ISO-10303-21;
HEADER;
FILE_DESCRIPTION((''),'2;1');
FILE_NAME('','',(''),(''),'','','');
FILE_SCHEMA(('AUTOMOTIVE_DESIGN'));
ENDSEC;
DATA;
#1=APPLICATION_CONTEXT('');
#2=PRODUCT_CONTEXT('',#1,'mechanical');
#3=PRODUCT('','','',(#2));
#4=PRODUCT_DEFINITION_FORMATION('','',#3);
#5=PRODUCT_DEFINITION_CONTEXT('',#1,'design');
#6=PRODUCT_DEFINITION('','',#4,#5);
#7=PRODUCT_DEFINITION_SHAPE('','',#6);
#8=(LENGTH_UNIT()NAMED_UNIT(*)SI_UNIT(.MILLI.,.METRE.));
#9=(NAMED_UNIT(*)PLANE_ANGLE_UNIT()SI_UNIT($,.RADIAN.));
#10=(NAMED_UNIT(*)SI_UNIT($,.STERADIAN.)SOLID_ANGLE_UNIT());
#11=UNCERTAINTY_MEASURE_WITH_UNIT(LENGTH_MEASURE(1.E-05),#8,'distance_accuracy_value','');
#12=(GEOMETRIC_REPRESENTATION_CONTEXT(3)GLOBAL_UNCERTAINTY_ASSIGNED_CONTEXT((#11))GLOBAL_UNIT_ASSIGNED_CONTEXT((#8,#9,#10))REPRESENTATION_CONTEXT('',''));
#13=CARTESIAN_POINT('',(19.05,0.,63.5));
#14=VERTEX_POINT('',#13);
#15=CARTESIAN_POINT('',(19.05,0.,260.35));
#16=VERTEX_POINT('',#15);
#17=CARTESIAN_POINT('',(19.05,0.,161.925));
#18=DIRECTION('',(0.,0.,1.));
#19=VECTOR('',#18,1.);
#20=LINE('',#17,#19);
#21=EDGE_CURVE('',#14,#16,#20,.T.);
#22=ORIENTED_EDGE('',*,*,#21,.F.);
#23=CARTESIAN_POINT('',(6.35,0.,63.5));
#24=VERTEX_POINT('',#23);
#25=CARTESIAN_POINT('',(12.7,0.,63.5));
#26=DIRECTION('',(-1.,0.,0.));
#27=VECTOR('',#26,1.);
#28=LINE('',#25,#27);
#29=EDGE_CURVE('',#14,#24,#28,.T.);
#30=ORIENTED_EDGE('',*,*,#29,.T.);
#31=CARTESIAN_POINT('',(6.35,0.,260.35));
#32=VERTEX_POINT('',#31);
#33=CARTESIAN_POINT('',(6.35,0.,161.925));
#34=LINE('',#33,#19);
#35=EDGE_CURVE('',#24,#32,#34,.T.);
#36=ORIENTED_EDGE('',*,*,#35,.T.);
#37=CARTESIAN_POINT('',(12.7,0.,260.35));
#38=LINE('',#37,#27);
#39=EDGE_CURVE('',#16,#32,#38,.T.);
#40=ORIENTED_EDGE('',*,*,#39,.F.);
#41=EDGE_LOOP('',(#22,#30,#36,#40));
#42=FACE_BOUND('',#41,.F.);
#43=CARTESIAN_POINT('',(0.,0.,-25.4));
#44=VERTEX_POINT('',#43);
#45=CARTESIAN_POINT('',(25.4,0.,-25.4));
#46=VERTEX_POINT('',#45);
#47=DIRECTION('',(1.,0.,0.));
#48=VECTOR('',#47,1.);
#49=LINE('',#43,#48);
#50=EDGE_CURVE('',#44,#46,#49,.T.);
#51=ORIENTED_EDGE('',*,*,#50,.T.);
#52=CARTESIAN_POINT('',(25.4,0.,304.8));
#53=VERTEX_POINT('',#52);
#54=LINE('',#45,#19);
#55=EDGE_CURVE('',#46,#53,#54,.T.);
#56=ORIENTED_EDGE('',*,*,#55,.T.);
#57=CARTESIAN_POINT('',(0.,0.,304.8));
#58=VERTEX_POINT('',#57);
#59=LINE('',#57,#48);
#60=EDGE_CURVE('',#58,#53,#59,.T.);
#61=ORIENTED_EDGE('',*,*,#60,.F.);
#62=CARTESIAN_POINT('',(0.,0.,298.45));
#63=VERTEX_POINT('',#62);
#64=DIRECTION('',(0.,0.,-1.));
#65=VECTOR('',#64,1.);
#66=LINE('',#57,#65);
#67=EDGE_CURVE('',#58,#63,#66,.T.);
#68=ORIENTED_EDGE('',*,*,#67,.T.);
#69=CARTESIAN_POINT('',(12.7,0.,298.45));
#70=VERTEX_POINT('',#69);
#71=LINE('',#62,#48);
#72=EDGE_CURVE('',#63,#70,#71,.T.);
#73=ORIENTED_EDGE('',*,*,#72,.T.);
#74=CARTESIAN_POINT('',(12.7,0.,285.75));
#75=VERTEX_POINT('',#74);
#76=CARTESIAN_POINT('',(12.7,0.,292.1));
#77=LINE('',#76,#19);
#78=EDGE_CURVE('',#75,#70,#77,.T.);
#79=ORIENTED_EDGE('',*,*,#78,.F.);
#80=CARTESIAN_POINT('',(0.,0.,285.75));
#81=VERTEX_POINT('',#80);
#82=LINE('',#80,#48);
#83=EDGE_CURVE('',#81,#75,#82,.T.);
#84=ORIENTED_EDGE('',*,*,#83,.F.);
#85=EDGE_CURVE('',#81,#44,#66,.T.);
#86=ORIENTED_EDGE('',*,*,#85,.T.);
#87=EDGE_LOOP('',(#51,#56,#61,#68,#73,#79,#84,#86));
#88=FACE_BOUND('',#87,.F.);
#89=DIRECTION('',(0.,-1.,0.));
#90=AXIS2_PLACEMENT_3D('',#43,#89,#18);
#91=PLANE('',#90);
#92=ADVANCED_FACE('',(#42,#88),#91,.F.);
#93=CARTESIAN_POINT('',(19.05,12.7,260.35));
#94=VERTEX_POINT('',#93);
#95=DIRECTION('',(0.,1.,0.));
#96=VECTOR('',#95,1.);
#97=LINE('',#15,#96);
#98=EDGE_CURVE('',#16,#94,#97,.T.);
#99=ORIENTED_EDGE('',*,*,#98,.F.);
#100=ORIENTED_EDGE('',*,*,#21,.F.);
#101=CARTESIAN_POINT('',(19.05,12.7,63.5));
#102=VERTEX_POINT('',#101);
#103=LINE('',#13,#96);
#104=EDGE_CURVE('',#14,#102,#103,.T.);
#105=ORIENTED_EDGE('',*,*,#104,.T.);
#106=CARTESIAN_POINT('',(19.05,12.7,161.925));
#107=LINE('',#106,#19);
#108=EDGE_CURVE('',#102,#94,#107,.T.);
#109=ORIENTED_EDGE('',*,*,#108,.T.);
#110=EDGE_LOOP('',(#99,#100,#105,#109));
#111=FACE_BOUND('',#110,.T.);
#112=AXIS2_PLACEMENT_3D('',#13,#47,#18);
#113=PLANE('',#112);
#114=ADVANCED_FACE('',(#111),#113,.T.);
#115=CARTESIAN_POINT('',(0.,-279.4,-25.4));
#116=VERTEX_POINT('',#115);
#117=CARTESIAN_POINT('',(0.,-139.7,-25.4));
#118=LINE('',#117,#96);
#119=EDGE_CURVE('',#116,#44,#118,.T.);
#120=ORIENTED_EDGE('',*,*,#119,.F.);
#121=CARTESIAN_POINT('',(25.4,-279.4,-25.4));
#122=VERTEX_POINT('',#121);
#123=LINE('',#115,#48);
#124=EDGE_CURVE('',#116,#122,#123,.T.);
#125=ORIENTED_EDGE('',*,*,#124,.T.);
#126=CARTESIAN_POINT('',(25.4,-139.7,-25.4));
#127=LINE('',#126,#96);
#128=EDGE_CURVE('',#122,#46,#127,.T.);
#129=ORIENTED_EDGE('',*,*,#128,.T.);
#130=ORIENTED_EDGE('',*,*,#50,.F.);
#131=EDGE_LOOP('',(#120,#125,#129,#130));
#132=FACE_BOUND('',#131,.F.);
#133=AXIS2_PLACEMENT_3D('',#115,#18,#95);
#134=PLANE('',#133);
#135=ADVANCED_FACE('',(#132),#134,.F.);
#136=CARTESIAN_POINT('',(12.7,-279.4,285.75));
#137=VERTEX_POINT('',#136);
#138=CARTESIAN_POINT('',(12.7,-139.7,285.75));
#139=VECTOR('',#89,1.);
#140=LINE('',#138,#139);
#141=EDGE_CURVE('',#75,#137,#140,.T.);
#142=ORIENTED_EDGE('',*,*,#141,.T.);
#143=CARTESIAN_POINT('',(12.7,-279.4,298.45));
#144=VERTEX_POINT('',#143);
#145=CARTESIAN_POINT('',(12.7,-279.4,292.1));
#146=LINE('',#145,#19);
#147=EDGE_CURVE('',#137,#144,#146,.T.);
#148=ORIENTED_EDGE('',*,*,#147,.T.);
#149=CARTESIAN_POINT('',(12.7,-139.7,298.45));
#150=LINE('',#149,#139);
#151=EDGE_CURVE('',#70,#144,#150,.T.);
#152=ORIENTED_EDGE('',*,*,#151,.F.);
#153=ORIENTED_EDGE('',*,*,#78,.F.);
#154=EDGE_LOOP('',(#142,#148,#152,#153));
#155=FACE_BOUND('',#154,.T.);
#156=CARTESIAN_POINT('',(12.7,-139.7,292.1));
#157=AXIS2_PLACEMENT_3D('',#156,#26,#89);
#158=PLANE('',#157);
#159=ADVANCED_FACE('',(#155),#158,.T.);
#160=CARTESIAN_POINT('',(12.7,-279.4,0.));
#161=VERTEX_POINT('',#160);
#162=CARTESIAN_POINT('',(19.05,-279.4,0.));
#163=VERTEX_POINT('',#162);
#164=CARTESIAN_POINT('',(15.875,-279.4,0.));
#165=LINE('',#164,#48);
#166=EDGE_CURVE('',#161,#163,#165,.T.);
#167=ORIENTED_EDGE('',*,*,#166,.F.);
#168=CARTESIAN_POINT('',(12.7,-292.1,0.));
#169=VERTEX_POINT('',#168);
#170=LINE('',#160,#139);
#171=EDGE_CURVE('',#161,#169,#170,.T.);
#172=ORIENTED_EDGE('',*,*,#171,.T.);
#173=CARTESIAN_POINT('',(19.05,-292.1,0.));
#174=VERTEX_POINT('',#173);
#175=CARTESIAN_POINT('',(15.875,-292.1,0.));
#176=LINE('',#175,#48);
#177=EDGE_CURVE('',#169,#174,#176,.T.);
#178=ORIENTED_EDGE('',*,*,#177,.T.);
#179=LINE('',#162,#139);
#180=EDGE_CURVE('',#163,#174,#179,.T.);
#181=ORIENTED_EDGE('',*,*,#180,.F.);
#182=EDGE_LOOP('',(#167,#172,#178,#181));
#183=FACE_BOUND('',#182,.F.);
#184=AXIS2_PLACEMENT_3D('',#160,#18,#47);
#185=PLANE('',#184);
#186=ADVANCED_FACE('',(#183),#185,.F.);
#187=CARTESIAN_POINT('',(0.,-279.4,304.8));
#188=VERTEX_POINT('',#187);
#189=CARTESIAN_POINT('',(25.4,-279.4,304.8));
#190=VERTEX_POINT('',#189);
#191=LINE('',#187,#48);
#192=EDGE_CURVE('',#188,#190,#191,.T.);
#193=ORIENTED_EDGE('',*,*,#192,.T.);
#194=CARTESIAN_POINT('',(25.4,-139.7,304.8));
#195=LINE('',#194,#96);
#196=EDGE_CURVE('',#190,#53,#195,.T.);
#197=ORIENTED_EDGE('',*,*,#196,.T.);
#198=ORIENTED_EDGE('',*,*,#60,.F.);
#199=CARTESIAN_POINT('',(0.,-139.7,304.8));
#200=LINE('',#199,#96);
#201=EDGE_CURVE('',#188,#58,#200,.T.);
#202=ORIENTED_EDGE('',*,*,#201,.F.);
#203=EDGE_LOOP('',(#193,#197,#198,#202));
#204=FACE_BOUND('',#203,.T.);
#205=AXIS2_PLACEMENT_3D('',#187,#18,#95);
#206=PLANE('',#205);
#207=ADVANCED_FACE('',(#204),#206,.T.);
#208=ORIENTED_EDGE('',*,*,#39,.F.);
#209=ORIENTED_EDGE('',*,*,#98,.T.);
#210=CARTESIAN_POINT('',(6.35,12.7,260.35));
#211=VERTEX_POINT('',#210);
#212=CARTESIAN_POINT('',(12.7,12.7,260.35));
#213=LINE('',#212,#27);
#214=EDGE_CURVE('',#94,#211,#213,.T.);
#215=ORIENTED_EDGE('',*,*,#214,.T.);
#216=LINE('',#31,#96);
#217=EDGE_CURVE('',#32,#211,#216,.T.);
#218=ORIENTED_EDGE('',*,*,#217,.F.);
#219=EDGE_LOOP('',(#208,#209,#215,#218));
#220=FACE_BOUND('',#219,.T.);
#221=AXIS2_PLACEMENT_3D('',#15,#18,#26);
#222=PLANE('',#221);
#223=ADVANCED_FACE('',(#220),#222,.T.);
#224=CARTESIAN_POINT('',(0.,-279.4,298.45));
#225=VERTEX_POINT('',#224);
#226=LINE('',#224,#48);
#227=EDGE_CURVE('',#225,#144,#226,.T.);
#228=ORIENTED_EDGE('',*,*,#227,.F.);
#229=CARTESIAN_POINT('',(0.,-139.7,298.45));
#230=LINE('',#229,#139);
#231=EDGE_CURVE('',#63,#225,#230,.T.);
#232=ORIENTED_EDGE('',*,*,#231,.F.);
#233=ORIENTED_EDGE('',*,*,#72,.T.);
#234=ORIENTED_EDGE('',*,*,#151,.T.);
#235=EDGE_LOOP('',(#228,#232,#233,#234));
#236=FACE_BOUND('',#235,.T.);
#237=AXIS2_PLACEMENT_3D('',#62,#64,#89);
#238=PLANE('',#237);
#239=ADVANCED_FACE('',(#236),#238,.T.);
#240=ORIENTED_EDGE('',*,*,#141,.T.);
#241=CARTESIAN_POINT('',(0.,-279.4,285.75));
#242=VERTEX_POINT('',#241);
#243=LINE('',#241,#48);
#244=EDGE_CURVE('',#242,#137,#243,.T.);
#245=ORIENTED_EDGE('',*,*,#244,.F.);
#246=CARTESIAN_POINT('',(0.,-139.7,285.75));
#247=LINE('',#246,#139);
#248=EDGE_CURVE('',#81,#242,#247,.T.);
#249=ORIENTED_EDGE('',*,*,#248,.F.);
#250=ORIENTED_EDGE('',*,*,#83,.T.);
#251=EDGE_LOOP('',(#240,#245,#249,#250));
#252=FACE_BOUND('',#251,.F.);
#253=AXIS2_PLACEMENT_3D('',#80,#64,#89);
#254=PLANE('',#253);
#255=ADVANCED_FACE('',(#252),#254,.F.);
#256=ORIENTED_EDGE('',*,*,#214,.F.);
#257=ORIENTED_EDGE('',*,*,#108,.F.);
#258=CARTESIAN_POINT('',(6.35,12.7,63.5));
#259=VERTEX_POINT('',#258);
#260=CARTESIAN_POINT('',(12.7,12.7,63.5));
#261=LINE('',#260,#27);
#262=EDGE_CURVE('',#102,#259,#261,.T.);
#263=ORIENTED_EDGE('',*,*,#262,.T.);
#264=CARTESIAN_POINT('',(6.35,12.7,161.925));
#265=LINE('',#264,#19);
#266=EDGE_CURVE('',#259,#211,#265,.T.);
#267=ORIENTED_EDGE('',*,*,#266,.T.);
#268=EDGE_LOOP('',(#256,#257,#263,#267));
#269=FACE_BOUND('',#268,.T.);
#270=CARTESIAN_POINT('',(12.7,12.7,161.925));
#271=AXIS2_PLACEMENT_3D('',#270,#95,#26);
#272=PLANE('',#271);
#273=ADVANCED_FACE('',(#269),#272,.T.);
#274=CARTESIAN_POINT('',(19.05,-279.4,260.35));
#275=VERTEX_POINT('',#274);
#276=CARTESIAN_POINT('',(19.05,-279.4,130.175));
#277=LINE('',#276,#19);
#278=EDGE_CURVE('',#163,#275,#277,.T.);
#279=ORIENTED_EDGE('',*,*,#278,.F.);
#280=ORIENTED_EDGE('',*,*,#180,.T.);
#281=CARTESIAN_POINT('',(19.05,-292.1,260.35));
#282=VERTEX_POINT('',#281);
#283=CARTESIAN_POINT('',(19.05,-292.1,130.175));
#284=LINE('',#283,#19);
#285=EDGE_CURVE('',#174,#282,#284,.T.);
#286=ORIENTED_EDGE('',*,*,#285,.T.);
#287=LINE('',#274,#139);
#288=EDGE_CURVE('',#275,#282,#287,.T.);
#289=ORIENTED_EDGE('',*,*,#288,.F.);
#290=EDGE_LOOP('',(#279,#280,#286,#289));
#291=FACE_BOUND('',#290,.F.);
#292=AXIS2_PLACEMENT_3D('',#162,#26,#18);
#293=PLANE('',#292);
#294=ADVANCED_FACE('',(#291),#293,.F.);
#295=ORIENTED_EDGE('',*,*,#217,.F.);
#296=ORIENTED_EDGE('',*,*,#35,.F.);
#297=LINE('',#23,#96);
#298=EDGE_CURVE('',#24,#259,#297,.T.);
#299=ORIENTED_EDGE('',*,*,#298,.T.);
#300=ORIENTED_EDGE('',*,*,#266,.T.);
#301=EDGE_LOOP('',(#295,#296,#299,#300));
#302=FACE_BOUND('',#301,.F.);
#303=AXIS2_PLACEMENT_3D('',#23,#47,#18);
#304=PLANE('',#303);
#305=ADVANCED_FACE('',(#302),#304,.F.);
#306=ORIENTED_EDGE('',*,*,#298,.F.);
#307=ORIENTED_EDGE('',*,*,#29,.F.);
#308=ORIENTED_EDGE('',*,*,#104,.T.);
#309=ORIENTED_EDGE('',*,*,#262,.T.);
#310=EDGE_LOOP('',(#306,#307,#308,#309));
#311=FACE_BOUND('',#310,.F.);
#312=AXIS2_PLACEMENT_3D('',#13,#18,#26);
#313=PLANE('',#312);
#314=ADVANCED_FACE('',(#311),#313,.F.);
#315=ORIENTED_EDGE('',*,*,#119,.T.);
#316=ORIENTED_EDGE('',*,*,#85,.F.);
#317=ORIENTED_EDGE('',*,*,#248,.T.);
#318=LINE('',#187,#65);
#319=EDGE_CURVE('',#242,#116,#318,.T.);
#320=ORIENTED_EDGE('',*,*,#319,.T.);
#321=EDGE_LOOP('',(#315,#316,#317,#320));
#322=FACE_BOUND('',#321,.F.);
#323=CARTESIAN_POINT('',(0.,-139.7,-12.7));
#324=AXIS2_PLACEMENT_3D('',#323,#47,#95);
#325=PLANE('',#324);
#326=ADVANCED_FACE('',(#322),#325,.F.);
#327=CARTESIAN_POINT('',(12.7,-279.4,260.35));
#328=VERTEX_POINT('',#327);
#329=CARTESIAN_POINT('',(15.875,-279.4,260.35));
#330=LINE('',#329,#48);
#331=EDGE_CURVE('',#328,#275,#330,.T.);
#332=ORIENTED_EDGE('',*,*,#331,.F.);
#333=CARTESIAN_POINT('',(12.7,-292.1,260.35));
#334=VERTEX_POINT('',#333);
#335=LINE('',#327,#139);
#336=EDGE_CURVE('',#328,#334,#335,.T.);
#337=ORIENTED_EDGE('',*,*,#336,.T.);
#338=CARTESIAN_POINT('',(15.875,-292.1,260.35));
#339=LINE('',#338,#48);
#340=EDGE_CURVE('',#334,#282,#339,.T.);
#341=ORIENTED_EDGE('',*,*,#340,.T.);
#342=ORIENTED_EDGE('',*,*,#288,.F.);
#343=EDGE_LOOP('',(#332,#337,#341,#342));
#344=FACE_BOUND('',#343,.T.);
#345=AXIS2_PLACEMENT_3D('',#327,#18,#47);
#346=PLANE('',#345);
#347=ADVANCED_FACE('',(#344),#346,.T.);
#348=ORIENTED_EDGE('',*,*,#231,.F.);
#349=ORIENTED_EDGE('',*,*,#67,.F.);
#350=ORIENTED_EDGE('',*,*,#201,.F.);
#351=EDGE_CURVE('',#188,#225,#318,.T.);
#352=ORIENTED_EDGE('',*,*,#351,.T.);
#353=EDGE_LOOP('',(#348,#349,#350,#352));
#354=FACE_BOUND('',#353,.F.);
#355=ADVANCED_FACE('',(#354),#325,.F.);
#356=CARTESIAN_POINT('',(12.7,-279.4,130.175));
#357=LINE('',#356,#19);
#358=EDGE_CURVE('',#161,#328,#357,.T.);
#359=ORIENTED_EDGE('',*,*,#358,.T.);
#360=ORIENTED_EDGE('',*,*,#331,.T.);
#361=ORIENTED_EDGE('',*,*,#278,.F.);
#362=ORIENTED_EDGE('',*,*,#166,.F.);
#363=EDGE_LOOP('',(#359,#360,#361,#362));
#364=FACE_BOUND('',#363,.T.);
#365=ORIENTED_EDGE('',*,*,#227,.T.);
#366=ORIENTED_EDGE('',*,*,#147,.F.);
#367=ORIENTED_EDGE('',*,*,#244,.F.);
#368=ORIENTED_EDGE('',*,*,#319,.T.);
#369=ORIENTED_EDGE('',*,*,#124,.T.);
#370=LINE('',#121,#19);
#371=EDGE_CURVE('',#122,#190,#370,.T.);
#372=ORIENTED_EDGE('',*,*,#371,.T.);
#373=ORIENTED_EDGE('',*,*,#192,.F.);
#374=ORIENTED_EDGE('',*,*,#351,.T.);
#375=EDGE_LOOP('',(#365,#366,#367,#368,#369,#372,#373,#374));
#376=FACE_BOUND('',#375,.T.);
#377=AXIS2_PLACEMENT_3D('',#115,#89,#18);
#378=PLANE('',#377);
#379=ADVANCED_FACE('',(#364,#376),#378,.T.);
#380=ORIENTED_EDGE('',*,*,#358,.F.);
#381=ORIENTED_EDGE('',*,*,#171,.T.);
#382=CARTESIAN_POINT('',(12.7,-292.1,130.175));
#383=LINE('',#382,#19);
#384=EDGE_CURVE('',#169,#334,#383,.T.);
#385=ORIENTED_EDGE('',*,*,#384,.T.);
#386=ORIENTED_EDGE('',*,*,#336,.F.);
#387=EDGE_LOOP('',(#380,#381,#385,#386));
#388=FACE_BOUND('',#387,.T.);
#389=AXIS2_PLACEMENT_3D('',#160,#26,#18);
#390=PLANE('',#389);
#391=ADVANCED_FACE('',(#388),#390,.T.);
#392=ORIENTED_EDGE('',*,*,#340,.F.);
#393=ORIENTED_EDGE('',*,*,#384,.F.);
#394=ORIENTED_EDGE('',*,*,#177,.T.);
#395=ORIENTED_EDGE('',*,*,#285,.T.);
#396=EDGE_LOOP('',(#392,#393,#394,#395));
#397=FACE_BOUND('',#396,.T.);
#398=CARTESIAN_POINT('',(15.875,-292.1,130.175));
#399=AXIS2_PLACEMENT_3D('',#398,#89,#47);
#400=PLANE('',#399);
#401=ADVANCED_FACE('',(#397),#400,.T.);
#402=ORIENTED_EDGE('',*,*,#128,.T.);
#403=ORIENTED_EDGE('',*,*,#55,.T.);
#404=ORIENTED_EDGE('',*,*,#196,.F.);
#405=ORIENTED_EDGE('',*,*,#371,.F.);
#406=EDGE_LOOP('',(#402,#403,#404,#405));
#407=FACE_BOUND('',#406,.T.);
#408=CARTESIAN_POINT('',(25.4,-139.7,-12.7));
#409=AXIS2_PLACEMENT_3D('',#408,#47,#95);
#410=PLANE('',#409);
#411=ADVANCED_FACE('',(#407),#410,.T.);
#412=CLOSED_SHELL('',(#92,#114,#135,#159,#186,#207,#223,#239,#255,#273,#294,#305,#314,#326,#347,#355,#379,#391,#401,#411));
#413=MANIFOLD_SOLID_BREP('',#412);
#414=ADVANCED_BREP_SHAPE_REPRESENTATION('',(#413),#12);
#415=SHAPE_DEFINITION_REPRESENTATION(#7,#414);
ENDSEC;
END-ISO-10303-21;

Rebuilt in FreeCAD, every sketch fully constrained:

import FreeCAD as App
import Part
import Sketcher

V = App.Vector
Q = App.Units.Quantity

doc = App.newDocument("Part")
body = doc.addObject("PartDesign::Body", "Body")

# Sketch on YZ plane
sketch1 = doc.addObject("Sketcher::SketchObject", "Sketch")
body.addObject(sketch1)
sketch1.AttachmentSupport = (doc.YZ_Plane, [""])
sketch1.MapMode = "FlatFace"
sketch1.addGeometry([
    Part.LineSegment(V(-279.4, 304.8, 0), V(-279.4, 0, 0)),
    Part.LineSegment(V(-279.4, 0, 0), V(0, 0, 0)),
    Part.LineSegment(V(0, 0, 0), V(0, 304.8, 0)),
    Part.LineSegment(V(0, 304.8, 0), V(-279.4, 304.8, 0)),
], False)
sketch1.addConstraint([
    Sketcher.Constraint("Coincident", 0, 2, 1, 1),
    Sketcher.Constraint("Coincident", 1, 2, 2, 1),
    Sketcher.Constraint("Coincident", 2, 2, 3, 1),
    Sketcher.Constraint("Coincident", 3, 2, 0, 1),
    Sketcher.Constraint("Vertical", 0),
    Sketcher.Constraint("Horizontal", 1),
    Sketcher.Constraint("Vertical", 2),
    Sketcher.Constraint("Horizontal", 3),
    Sketcher.Constraint("Coincident", 1, 2, -1, 1),
    Sketcher.Constraint("DistanceX", 1, 1, 1, 2, Q("11 in")),
    Sketcher.Constraint("DistanceY", 0, 2, 0, 1, Q("12 in")),
])
pad1 = doc.addObject("PartDesign::Pad", "Pad")
body.addObject(pad1)
pad1.Profile = sketch1
pad1.Length = Q("1 in")

# Sketch on YZ plane
sketch2 = doc.addObject("Sketcher::SketchObject", "Sketch001")
body.addObject(sketch2)
sketch2.AttachmentSupport = (doc.YZ_Plane, [""])
sketch2.MapMode = "FlatFace"
sketch2.addGeometry([
    Part.LineSegment(V(-279.4, 0, 0), V(-279.4, -25.4, 0)),
    Part.LineSegment(V(-279.4, -25.4, 0), V(0, -25.4, 0)),
    Part.LineSegment(V(0, -25.4, 0), V(0, 0, 0)),
    Part.LineSegment(V(0, 0, 0), V(-279.4, 0, 0)),
], False)
sketch2.addConstraint([
    Sketcher.Constraint("Coincident", 0, 2, 1, 1),
    Sketcher.Constraint("Coincident", 1, 2, 2, 1),
    Sketcher.Constraint("Coincident", 2, 2, 3, 1),
    Sketcher.Constraint("Coincident", 3, 2, 0, 1),
    Sketcher.Constraint("Vertical", 0),
    Sketcher.Constraint("Horizontal", 1),
    Sketcher.Constraint("Vertical", 2),
    Sketcher.Constraint("Horizontal", 3),
    Sketcher.Constraint("Coincident", 2, 2, -1, 1),
    Sketcher.Constraint("DistanceX", 1, 1, 1, 2, Q("11 in")),
    Sketcher.Constraint("DistanceY", 0, 2, 0, 1, Q("1 in")),
])
pad2 = doc.addObject("PartDesign::Pad", "Pad001")
body.addObject(pad2)
pad2.Profile = sketch2
pad2.Length = Q("1 in")

# Sketch on YZ plane
sketch3 = doc.addObject("Sketcher::SketchObject", "Sketch002")
body.addObject(sketch3)
sketch3.AttachmentSupport = (doc.YZ_Plane, [""])
sketch3.MapMode = "FlatFace"
sketch3.addGeometry([
    Part.LineSegment(V(0, 298.45, 0), V(0, 285.75, 0)),
    Part.LineSegment(V(0, 285.75, 0), V(-279.4, 285.75, 0)),
    Part.LineSegment(V(-279.4, 285.75, 0), V(-279.4, 298.45, 0)),
    Part.LineSegment(V(-279.4, 298.45, 0), V(0, 298.45, 0)),
], False)
sketch3.addConstraint([
    Sketcher.Constraint("Coincident", 0, 2, 1, 1),
    Sketcher.Constraint("Coincident", 1, 2, 2, 1),
    Sketcher.Constraint("Coincident", 2, 2, 3, 1),
    Sketcher.Constraint("Coincident", 3, 2, 0, 1),
    Sketcher.Constraint("Vertical", 0),
    Sketcher.Constraint("Horizontal", 1),
    Sketcher.Constraint("Vertical", 2),
    Sketcher.Constraint("Horizontal", 3),
    Sketcher.Constraint("PointOnObject", 0, 2, -2),
    Sketcher.Constraint("DistanceX", 1, 2, 1, 1, Q("11 in")),
    Sketcher.Constraint("DistanceY", 0, 2, 0, 1, Q("0.5 in")),
    Sketcher.Constraint("DistanceY", -1, 1, 0, 2, Q("11.25 in")),
])
pocket1 = doc.addObject("PartDesign::Pocket", "Pocket")
body.addObject(pocket1)
pocket1.Profile = sketch3
pocket1.Length = Q("0.5 in")
pocket1.Reversed = True

# Sketch on XZ plane
sketch4 = doc.addObject("Sketcher::SketchObject", "Sketch003")
body.addObject(sketch4)
sketch4.AttachmentSupport = (doc.XZ_Plane, [""])
sketch4.MapMode = "FlatFace"
sketch4.AttachmentOffset = App.Placement(V(0, 0, 11 * 25.4), App.Rotation())
sketch4.addGeometry([
    Part.LineSegment(V(12.7, 260.35, 0), V(12.7, 0, 0)),
    Part.LineSegment(V(12.7, 0, 0), V(19.05, 0, 0)),
    Part.LineSegment(V(19.05, 0, 0), V(19.05, 260.35, 0)),
    Part.LineSegment(V(19.05, 260.35, 0), V(12.7, 260.35, 0)),
], False)
sketch4.addConstraint([
    Sketcher.Constraint("Coincident", 0, 2, 1, 1),
    Sketcher.Constraint("Coincident", 1, 2, 2, 1),
    Sketcher.Constraint("Coincident", 2, 2, 3, 1),
    Sketcher.Constraint("Coincident", 3, 2, 0, 1),
    Sketcher.Constraint("Vertical", 0),
    Sketcher.Constraint("Horizontal", 1),
    Sketcher.Constraint("Vertical", 2),
    Sketcher.Constraint("Horizontal", 3),
    Sketcher.Constraint("PointOnObject", 0, 2, -1),
    Sketcher.Constraint("DistanceX", 1, 1, 1, 2, Q("0.25 in")),
    Sketcher.Constraint("DistanceY", 0, 2, 0, 1, Q("10.25 in")),
    Sketcher.Constraint("DistanceX", -1, 1, 0, 2, Q("0.5 in")),
])
pad3 = doc.addObject("PartDesign::Pad", "Pad002")
body.addObject(pad3)
pad3.Profile = sketch4
pad3.Length = Q("0.5 in")

# Sketch on XZ plane
sketch5 = doc.addObject("Sketcher::SketchObject", "Sketch004")
body.addObject(sketch5)
sketch5.AttachmentSupport = (doc.XZ_Plane, [""])
sketch5.MapMode = "FlatFace"
sketch5.addGeometry([
    Part.LineSegment(V(19.05, 260.35, 0), V(19.05, 63.5, 0)),
    Part.LineSegment(V(19.05, 63.5, 0), V(6.35, 63.5, 0)),
    Part.LineSegment(V(6.35, 63.5, 0), V(6.35, 260.35, 0)),
    Part.LineSegment(V(6.35, 260.35, 0), V(19.05, 260.35, 0)),
], False)
sketch5.addConstraint([
    Sketcher.Constraint("Coincident", 0, 2, 1, 1),
    Sketcher.Constraint("Coincident", 1, 2, 2, 1),
    Sketcher.Constraint("Coincident", 2, 2, 3, 1),
    Sketcher.Constraint("Coincident", 3, 2, 0, 1),
    Sketcher.Constraint("Vertical", 0),
    Sketcher.Constraint("Horizontal", 1),
    Sketcher.Constraint("Vertical", 2),
    Sketcher.Constraint("Horizontal", 3),
    Sketcher.Constraint("DistanceX", 1, 2, 1, 1, Q("0.5 in")),
    Sketcher.Constraint("DistanceY", 0, 2, 0, 1, Q("7.75 in")),
    Sketcher.Constraint("DistanceY", -1, 1, 0, 2, Q("2.5 in")),
    Sketcher.Constraint("DistanceX", -1, 1, 0, 2, Q("0.75 in")),
])
pad4 = doc.addObject("PartDesign::Pad", "Pad003")
body.addObject(pad4)
pad4.Profile = sketch5
pad4.Length = Q("0.5 in")
pad4.Reversed = True

doc.recompute()
